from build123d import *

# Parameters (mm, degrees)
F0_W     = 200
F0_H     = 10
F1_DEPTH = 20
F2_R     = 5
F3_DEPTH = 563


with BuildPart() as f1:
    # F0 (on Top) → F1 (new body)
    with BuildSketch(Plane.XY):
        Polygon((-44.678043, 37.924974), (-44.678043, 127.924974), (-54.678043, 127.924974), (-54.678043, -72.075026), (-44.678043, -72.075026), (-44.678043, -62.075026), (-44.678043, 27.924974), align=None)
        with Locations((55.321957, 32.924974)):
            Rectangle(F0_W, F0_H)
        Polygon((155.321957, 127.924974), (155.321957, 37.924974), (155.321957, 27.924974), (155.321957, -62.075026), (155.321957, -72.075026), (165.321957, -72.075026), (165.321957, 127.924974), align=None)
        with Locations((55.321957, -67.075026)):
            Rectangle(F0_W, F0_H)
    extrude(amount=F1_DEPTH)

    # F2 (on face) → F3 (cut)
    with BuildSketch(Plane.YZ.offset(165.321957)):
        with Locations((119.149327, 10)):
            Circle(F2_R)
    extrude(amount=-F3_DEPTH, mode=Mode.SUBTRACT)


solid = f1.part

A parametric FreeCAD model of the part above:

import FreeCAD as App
import Part
import Sketcher


def add_polygon(sketch, points):
    """Adds a closed chain of lines whose ends are joined by coincident constraints."""
    first, n = sketch.GeometryCount, len(points)
    for a, b in zip(points, points[1:] + points[:1]):
        sketch.addGeometry(Part.LineSegment(App.Vector(*a, 0), App.Vector(*b, 0)), False)
    for i in range(n):
        sketch.addConstraint(Sketcher.Constraint("Coincident", first + i, 2, first + (i + 1) % n, 1))

doc = App.newDocument("Part")
body = doc.addObject("PartDesign::Body", "Body")

sketch1 = body.newObject("Sketcher::SketchObject", "Sketch")
sketch1.AttachmentSupport = (doc.getObject("XY_Plane"), [""])
sketch1.MapMode = "FlatFace"
add_polygon(sketch1, [(-45, 128), (-55, 128), (-55, -72), (165, -72), (165, 128), (155, 128), (155, 38), (-45, 38)])
add_polygon(sketch1, [(-45, -62), (-45, 28), (155, 28), (155, -62)])
sketch1.addConstraint(Sketcher.Constraint("Horizontal", 0))
sketch1.addConstraint(Sketcher.Constraint("Vertical", 1))
sketch1.addConstraint(Sketcher.Constraint("Horizontal", 2))
sketch1.addConstraint(Sketcher.Constraint("Vertical", 3))
sketch1.addConstraint(Sketcher.Constraint("Horizontal", 4))
sketch1.addConstraint(Sketcher.Constraint("Vertical", 5))
sketch1.addConstraint(Sketcher.Constraint("Horizontal", 6))
sketch1.addConstraint(Sketcher.Constraint("Vertical", 7))
sketch1.addConstraint(Sketcher.Constraint("Vertical", 8))
sketch1.addConstraint(Sketcher.Constraint("Horizontal", 9))
sketch1.addConstraint(Sketcher.Constraint("Vertical", 10))
sketch1.addConstraint(Sketcher.Constraint("Horizontal", 11))
sketch1.addConstraint(Sketcher.Constraint("Horizontal", 0, 2, 3, 2))
sketch1.addConstraint(Sketcher.Constraint("Vertical", 7, 2, 8, 2))
sketch1.addConstraint(Sketcher.Constraint("Vertical", 5, 2, 9, 2))
sketch1.addConstraint(Sketcher.Constraint("Equal", 0, 4))
sketch1.addConstraint(Sketcher.Constraint("Equal", 11, 1))
sketch1.addConstraint(Sketcher.Constraint("Equal", 7, 8))
sketch1.addConstraint(Sketcher.Constraint("DistanceX", 0, 2, 0, 1, 10.0))
sketch1.addConstraint(Sketcher.Constraint("DistanceX", 2, 1, 2, 2, 220.0))
sketch1.addConstraint(Sketcher.Constraint("DistanceY", 5, 2, 5, 1, 90.0))
sketch1.addConstraint(Sketcher.Constraint("DistanceY", 8, 2, 6, 2, 10.0))
sketch1.addConstraint(Sketcher.Constraint("DistanceX", 0, 2, -1, 1, 54.678043))
sketch1.addConstraint(Sketcher.Constraint("DistanceY", -1, 1, 0, 2, 127.924974))
pad1 = body.newObject("PartDesign::Pad", "Pad")
pad1.Profile = sketch1
pad1.Length = 20

sketch2 = body.newObject("Sketcher::SketchObject", "Sketch001")
sketch2.AttachmentSupport = (doc.getObject("YZ_Plane"), [""])
sketch2.MapMode = "FlatFace"
sketch2.AttachmentOffset = App.Placement(App.Vector(0, 0, 165.321957), App.Rotation())
sketch2.addGeometry(Part.Circle(App.Vector(119, 10, 0), App.Vector(0, 0, 1), 5), False)
sketch2.addConstraint(Sketcher.Constraint("Diameter", 0, 10.0))
sketch2.addConstraint(Sketcher.Constraint("DistanceY", -1, 1, 0, 3, 10.0))
sketch2.addConstraint(Sketcher.Constraint("DistanceX", -1, 1, 0, 3, 119.149327))
pocket1 = body.newObject("PartDesign::Pocket", "Pocket")
pocket1.Profile = sketch2
pocket1.Length = 563

doc.recompute()
